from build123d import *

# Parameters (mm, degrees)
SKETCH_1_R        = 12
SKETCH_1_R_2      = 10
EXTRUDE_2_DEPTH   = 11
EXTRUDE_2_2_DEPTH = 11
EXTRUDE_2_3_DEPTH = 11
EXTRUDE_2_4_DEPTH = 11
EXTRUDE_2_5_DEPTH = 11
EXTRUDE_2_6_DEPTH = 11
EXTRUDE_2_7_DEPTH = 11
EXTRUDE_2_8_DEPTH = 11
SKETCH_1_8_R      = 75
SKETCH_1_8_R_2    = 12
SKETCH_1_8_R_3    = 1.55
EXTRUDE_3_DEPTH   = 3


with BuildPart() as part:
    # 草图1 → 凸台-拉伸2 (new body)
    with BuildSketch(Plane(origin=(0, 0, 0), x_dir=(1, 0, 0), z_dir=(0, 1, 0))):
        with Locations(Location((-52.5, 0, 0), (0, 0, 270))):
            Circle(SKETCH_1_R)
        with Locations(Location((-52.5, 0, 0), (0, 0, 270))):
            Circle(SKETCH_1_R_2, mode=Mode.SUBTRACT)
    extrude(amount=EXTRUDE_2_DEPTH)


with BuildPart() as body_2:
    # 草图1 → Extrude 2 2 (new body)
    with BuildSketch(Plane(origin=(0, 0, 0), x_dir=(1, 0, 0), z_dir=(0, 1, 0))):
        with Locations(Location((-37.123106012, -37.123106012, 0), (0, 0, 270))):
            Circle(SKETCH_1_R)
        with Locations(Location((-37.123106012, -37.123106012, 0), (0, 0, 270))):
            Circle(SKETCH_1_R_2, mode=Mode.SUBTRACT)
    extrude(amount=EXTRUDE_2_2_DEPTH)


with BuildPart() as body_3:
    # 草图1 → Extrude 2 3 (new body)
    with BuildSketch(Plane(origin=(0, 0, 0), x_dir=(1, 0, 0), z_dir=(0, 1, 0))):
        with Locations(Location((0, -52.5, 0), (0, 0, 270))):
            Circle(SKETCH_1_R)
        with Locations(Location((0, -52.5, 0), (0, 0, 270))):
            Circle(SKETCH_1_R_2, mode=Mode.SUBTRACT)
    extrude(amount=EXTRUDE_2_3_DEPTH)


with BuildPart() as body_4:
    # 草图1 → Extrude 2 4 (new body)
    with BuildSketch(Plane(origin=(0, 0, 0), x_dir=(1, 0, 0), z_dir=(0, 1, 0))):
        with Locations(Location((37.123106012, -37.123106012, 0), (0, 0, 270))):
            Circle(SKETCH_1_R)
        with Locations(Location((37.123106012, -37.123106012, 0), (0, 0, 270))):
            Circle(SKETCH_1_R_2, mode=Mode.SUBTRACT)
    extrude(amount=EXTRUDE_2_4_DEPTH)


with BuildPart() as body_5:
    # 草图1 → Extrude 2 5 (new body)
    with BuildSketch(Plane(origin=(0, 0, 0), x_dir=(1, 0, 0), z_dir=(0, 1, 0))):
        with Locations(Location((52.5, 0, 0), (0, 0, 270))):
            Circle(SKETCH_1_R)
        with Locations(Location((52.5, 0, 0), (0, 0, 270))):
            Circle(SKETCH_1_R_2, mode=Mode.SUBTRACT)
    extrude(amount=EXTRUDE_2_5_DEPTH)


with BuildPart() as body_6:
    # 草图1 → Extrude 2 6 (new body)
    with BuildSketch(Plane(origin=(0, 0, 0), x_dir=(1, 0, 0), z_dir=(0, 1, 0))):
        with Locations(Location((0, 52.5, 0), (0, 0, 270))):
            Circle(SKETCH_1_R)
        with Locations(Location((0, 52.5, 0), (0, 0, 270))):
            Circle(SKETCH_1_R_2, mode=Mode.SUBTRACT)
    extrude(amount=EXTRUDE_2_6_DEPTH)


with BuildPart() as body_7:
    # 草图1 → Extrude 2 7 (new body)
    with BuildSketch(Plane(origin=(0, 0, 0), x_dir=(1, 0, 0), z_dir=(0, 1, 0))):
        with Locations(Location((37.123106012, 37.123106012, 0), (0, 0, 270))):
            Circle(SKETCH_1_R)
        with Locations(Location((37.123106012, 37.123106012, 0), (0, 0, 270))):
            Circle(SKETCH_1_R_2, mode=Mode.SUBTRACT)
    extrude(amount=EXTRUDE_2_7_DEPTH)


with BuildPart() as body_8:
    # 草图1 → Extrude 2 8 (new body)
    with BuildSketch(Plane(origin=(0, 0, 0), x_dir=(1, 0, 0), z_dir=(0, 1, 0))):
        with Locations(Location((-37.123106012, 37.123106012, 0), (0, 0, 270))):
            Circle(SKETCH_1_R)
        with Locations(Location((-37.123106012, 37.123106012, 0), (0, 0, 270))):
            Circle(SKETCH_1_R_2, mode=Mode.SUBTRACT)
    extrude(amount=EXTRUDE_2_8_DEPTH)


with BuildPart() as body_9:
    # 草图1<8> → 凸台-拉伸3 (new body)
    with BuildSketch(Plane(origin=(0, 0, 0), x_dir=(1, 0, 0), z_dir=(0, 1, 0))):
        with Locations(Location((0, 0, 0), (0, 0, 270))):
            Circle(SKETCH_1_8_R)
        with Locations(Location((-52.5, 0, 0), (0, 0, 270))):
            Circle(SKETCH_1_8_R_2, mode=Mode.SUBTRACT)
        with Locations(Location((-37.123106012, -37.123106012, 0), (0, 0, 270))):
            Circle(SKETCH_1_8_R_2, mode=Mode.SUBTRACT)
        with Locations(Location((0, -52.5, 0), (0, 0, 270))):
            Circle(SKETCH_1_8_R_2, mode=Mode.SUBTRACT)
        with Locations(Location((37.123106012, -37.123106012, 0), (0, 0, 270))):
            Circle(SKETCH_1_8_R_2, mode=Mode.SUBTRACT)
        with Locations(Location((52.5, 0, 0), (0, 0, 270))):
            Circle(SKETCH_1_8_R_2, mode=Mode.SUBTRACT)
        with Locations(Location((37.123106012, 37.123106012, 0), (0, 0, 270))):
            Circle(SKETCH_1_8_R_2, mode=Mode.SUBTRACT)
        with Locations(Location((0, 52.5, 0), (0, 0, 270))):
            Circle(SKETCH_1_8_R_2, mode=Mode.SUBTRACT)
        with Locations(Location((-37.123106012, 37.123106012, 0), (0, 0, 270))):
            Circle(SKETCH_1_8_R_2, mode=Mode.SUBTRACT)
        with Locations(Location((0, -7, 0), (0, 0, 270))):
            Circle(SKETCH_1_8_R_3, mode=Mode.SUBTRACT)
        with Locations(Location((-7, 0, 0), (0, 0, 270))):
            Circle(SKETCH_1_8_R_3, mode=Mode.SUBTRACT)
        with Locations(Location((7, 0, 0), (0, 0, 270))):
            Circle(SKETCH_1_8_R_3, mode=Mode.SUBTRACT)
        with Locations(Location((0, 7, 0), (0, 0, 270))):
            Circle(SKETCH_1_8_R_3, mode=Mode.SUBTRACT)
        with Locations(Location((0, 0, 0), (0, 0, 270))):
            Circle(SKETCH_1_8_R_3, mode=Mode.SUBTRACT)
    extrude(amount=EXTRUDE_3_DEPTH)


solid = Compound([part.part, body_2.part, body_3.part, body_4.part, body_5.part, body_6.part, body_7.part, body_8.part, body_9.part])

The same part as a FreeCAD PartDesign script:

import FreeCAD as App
import Part
import Sketcher
Q = App.Units.Quantity

doc = App.newDocument("Part")
body = doc.addObject("PartDesign::Body", "Body")

# Sketch on XZ plane
sketch1 = body.newObject("Sketcher::SketchObject", "Sketch")
sketch1.AttachmentSupport = (doc.getObject("XZ_Plane"), [""])
sketch1.MapMode = "FlatFace"
sketch1.addGeometry(Part.Circle(App.Vector(-52, 0, 0), App.Vector(0, 0, 1), 12), False)
sketch1.addGeometry(Part.Circle(App.Vector(-52, 0, 0), App.Vector(0, 0, 1), 10), False)
sketch1.addConstraint(Sketcher.Constraint("Coincident", 1, 3, 0, 3))
sketch1.addConstraint(Sketcher.Constraint("PointOnObject", 0, 3, -1))
sketch1.addConstraint(Sketcher.Constraint("Diameter", 0, Q("24 mm")))
sketch1.addConstraint(Sketcher.Constraint("Diameter", 1, Q("20 mm")))
sketch1.addConstraint(Sketcher.Constraint("DistanceX", 0, 3, -1, 1, Q("52.5 mm")))
pad1 = body.newObject("PartDesign::Pad", "Pad")
pad1.Profile = sketch1
pad1.Length = 11
pad1.Reversed = True
body2 = doc.addObject("PartDesign::Body", "Body001")

# Sketch on XZ plane
sketch2 = body2.newObject("Sketcher::SketchObject", "Sketch001")
sketch2.AttachmentSupport = (doc.getObject("XZ_Plane001"), [""])
sketch2.MapMode = "FlatFace"
sketch2.addGeometry(Part.Circle(App.Vector(-37, 37, 0), App.Vector(0, 0, 1), 12), False)
sketch2.addGeometry(Part.Circle(App.Vector(-37, 37, 0), App.Vector(0, 0, 1), 10), False)
sketch2.addConstraint(Sketcher.Constraint("Coincident", 1, 3, 0, 3))
sketch2.addConstraint(Sketcher.Constraint("Diameter", 0, Q("24 mm")))
sketch2.addConstraint(Sketcher.Constraint("Diameter", 1, Q("20 mm")))
sketch2.addConstraint(Sketcher.Constraint("DistanceX", 0, 3, -1, 1, Q("37.123106 mm")))
sketch2.addConstraint(Sketcher.Constraint("DistanceY", -1, 1, 0, 3, Q("37.123106 mm")))
pad2 = body2.newObject("PartDesign::Pad", "Pad001")
pad2.Profile = sketch2
pad2.Length = 11
pad2.Reversed = True
body3 = doc.addObject("PartDesign::Body", "Body002")

# Sketch on XZ plane
sketch3 = body3.newObject("Sketcher::SketchObject", "Sketch002")
sketch3.AttachmentSupport = (doc.getObject("XZ_Plane002"), [""])
sketch3.MapMode = "FlatFace"
sketch3.addGeometry(Part.Circle(App.Vector(0, 52, 0), App.Vector(0, 0, 1), 12), False)
sketch3.addGeometry(Part.Circle(App.Vector(0, 52, 0), App.Vector(0, 0, 1), 10), False)
sketch3.addConstraint(Sketcher.Constraint("Coincident", 1, 3, 0, 3))
sketch3.addConstraint(Sketcher.Constraint("PointOnObject", 0, 3, -2))
sketch3.addConstraint(Sketcher.Constraint("Diameter", 0, Q("24 mm")))
sketch3.addConstraint(Sketcher.Constraint("Diameter", 1, Q("20 mm")))
sketch3.addConstraint(Sketcher.Constraint("DistanceY", -1, 1, 0, 3, Q("52.5 mm")))
pad3 = body3.newObject("PartDesign::Pad", "Pad002")
pad3.Profile = sketch3
pad3.Length = 11
pad3.Reversed = True
body4 = doc.addObject("PartDesign::Body", "Body003")

# Sketch on XZ plane
sketch4 = body4.newObject("Sketcher::SketchObject", "Sketch003")
sketch4.AttachmentSupport = (doc.getObject("XZ_Plane003"), [""])
sketch4.MapMode = "FlatFace"
sketch4.addGeometry(Part.Circle(App.Vector(37, 37, 0), App.Vector(0, 0, 1), 12), False)
sketch4.addGeometry(Part.Circle(App.Vector(37, 37, 0), App.Vector(0, 0, 1), 10), False)
sketch4.addConstraint(Sketcher.Constraint("Coincident", 1, 3, 0, 3))
sketch4.addConstraint(Sketcher.Constraint("Diameter", 0, Q("24 mm")))
sketch4.addConstraint(Sketcher.Constraint("Diameter", 1, Q("20 mm")))
sketch4.addConstraint(Sketcher.Constraint("DistanceX", -1, 1, 0, 3, Q("37.123106 mm")))
sketch4.addConstraint(Sketcher.Constraint("DistanceY", -1, 1, 0, 3, Q("37.123106 mm")))
pad4 = body4.newObject("PartDesign::Pad", "Pad003")
pad4.Profile = sketch4
pad4.Length = 11
pad4.Reversed = True
body5 = doc.addObject("PartDesign::Body", "Body004")

# Sketch on XZ plane
sketch5 = body5.newObject("Sketcher::SketchObject", "Sketch004")
sketch5.AttachmentSupport = (doc.getObject("XZ_Plane004"), [""])
sketch5.MapMode = "FlatFace"
sketch5.addGeometry(Part.Circle(App.Vector(52, 0, 0), App.Vector(0, 0, 1), 12), False)
sketch5.addGeometry(Part.Circle(App.Vector(52, 0, 0), App.Vector(0, 0, 1), 10), False)
sketch5.addConstraint(Sketcher.Constraint("Coincident", 1, 3, 0, 3))
sketch5.addConstraint(Sketcher.Constraint("PointOnObject", 0, 3, -1))
sketch5.addConstraint(Sketcher.Constraint("Diameter", 0, Q("24 mm")))
sketch5.addConstraint(Sketcher.Constraint("Diameter", 1, Q("20 mm")))
sketch5.addConstraint(Sketcher.Constraint("DistanceX", -1, 1, 0, 3, Q("52.5 mm")))
pad5 = body5.newObject("PartDesign::Pad", "Pad004")
pad5.Profile = sketch5
pad5.Length = 11
pad5.Reversed = True
body6 = doc.addObject("PartDesign::Body", "Body005")

# Sketch on XZ plane
sketch6 = body6.newObject("Sketcher::SketchObject", "Sketch005")
sketch6.AttachmentSupport = (doc.getObject("XZ_Plane005"), [""])
sketch6.MapMode = "FlatFace"
sketch6.addGeometry(Part.Circle(App.Vector(0, -52, 0), App.Vector(0, 0, 1), 12), False)
sketch6.addGeometry(Part.Circle(App.Vector(0, -52, 0), App.Vector(0, 0, 1), 10), False)
sketch6.addConstraint(Sketcher.Constraint("Coincident", 1, 3, 0, 3))
sketch6.addConstraint(Sketcher.Constraint("PointOnObject", 0, 3, -2))
sketch6.addConstraint(Sketcher.Constraint("Diameter", 0, Q("24 mm")))
sketch6.addConstraint(Sketcher.Constraint("Diameter", 1, Q("20 mm")))
sketch6.addConstraint(Sketcher.Constraint("DistanceY", 0, 3, -1, 1, Q("52.5 mm")))
pad6 = body6.newObject("PartDesign::Pad", "Pad005")
pad6.Profile = sketch6
pad6.Length = 11
pad6.Reversed = True
body7 = doc.addObject("PartDesign::Body", "Body006")

# Sketch on XZ plane
sketch7 = body7.newObject("Sketcher::SketchObject", "Sketch006")
sketch7.AttachmentSupport = (doc.getObject("XZ_Plane006"), [""])
sketch7.MapMode = "FlatFace"
sketch7.addGeometry(Part.Circle(App.Vector(37, -37, 0), App.Vector(0, 0, 1), 12), False)
sketch7.addGeometry(Part.Circle(App.Vector(37, -37, 0), App.Vector(0, 0, 1), 10), False)
sketch7.addConstraint(Sketcher.Constraint("Coincident", 1, 3, 0, 3))
sketch7.addConstraint(Sketcher.Constraint("Diameter", 0, Q("24 mm")))
sketch7.addConstraint(Sketcher.Constraint("Diameter", 1, Q("20 mm")))
sketch7.addConstraint(Sketcher.Constraint("DistanceX", -1, 1, 0, 3, Q("37.123106 mm")))
sketch7.addConstraint(Sketcher.Constraint("DistanceY", 0, 3, -1, 1, Q("37.123106 mm")))
pad7 = body7.newObject("PartDesign::Pad", "Pad006")
pad7.Profile = sketch7
pad7.Length = 11
pad7.Reversed = True
body8 = doc.addObject("PartDesign::Body", "Body007")

# Sketch on XZ plane
sketch8 = body8.newObject("Sketcher::SketchObject", "Sketch007")
sketch8.AttachmentSupport = (doc.getObject("XZ_Plane007"), [""])
sketch8.MapMode = "FlatFace"
sketch8.addGeometry(Part.Circle(App.Vector(-37, -37, 0), App.Vector(0, 0, 1), 12), False)
sketch8.addGeometry(Part.Circle(App.Vector(-37, -37, 0), App.Vector(0, 0, 1), 10), False)
sketch8.addConstraint(Sketcher.Constraint("Coincident", 1, 3, 0, 3))
sketch8.addConstraint(Sketcher.Constraint("Diameter", 0, Q("24 mm")))
sketch8.addConstraint(Sketcher.Constraint("Diameter", 1, Q("20 mm")))
sketch8.addConstraint(Sketcher.Constraint("DistanceX", 0, 3, -1, 1, Q("37.123106 mm")))
sketch8.addConstraint(Sketcher.Constraint("DistanceY", 0, 3, -1, 1, Q("37.123106 mm")))
pad8 = body8.newObject("PartDesign::Pad", "Pad007")
pad8.Profile = sketch8
pad8.Length = 11
pad8.Reversed = True
body9 = doc.addObject("PartDesign::Body", "Body008")

# Sketch on XZ plane
sketch9 = body9.newObject("Sketcher::SketchObject", "Sketch008")
sketch9.AttachmentSupport = (doc.getObject("XZ_Plane008"), [""])
sketch9.MapMode = "FlatFace"
sketch9.addGeometry(Part.Circle(App.Vector(0, 0, 0), App.Vector(0, 0, 1), 75), False)
sketch9.addGeometry(Part.Circle(App.Vector(-37.1, -37.1, 0), App.Vector(0, 0, 1), 12), False)
sketch9.addGeometry(Part.Circle(App.Vector(0, -52.5, 0), App.Vector(0, 0, 1), 12), False)
sketch9.addGeometry(Part.Circle(App.Vector(-52.5, 0, 0), App.Vector(0, 0, 1), 12), False)
sketch9.addGeometry(Part.Circle(App.Vector(-37.1, 37.1, 0), App.Vector(0, 0, 1), 12), False)
sketch9.addGeometry(Part.Circle(App.Vector(-7, 0, 0), App.Vector(0, 0, 1), 1.6), False)
sketch9.addGeometry(Part.Circle(App.Vector(0, -7, 0), App.Vector(0, 0, 1), 1.6), False)
sketch9.addGeometry(Part.Circle(App.Vector(37.1, -37.1, 0), App.Vector(0, 0, 1), 12), False)
sketch9.addGeometry(Part.Circle(App.Vector(0, 0, 0), App.Vector(0, 0, 1), 1.6), False)
sketch9.addGeometry(Part.Circle(App.Vector(0, 7, 0), App.Vector(0, 0, 1), 1.6), False)
sketch9.addGeometry(Part.Circle(App.Vector(7, 0, 0), App.Vector(0, 0, 1), 1.6), False)
sketch9.addGeometry(Part.Circle(App.Vector(0, 52.5, 0), App.Vector(0, 0, 1), 12), False)
sketch9.addGeometry(Part.Circle(App.Vector(52.5, 0, 0), App.Vector(0, 0, 1), 12), False)
sketch9.addGeometry(Part.Circle(App.Vector(37.1, 37.1, 0), App.Vector(0, 0, 1), 12), False)
sketch9.addConstraint(Sketcher.Constraint("Coincident", 0, 3, -1, 1))
sketch9.addConstraint(Sketcher.Constraint("Coincident", 8, 3, -1, 1))
sketch9.addConstraint(Sketcher.Constraint("Equal", 1, 2))
sketch9.addConstraint(Sketcher.Constraint("Equal", 2, 3))
sketch9.addConstraint(Sketcher.Constraint("Equal", 3, 4))
sketch9.addConstraint(Sketcher.Constraint("Equal", 5, 6))
sketch9.addConstraint(Sketcher.Constraint("Equal", 4, 7))
sketch9.addConstraint(Sketcher.Constraint("Equal", 6, 8))
sketch9.addConstraint(Sketcher.Constraint("Equal", 8, 9))
sketch9.addConstraint(Sketcher.Constraint("Equal", 9, 10))
sketch9.addConstraint(Sketcher.Constraint("Equal", 7, 11))
sketch9.addConstraint(Sketcher.Constraint("Equal", 11, 12))
sketch9.addConstraint(Sketcher.Constraint("Equal", 12, 13))
sketch9.addConstraint(Sketcher.Constraint("Symmetric", 4, 3, 7, 3, -1, 1))
sketch9.addConstraint(Sketcher.Constraint("Symmetric", 6, 3, 9, 3, -1, 1))
sketch9.addConstraint(Sketcher.Constraint("Symmetric", 5, 3, 10, 3, -1, 1))
sketch9.addConstraint(Sketcher.Constraint("Symmetric", 2, 3, 11, 3, -1, 1))
sketch9.addConstraint(Sketcher.Constraint("Symmetric", 3, 3, 12, 3, -1, 1))
sketch9.addConstraint(Sketcher.Constraint("Symmetric", 1, 3, 13, 3, -1, 1))
sketch9.addConstraint(Sketcher.Constraint("Symmetric", 1, 3, 7, 3, -2))
sketch9.addConstraint(Sketcher.Constraint("PointOnObject", 2, 3, -2))
sketch9.addConstraint(Sketcher.Constraint("PointOnObject", 3, 3, -1))
sketch9.addConstraint(Sketcher.Constraint("PointOnObject", 5, 3, -1))
sketch9.addConstraint(Sketcher.Constraint("PointOnObject", 6, 3, -2))
sketch9.addConstraint(Sketcher.Constraint("Diameter", 0, Q("150 mm")))
sketch9.addConstraint(Sketcher.Constraint("Diameter", 1, Q("24 mm")))
sketch9.addConstraint(Sketcher.Constraint("Diameter", 5, Q("3.1 mm")))
sketch9.addConstraint(Sketcher.Constraint("DistanceX", 5, 3, -1, 1, Q("7 mm")))
sketch9.addConstraint(Sketcher.Constraint("DistanceY", 6, 3, -1, 1, Q("7 mm")))
sketch9.addConstraint(Sketcher.Constraint("DistanceY", 2, 3, -1, 1, Q("52.5 mm")))
sketch9.addConstraint(Sketcher.Constraint("DistanceX", 3, 3, -1, 1, Q("52.5 mm")))
sketch9.addConstraint(Sketcher.Constraint("DistanceX", 1, 3, -1, 1, Q("37.123106 mm")))
sketch9.addConstraint(Sketcher.Constraint("DistanceY", 1, 3, -1, 1, Q("37.123106 mm")))
pad9 = body9.newObject("PartDesign::Pad", "Pad008")
pad9.Profile = sketch9
pad9.Length = 3
pad9.Reversed = True

doc.recompute()
